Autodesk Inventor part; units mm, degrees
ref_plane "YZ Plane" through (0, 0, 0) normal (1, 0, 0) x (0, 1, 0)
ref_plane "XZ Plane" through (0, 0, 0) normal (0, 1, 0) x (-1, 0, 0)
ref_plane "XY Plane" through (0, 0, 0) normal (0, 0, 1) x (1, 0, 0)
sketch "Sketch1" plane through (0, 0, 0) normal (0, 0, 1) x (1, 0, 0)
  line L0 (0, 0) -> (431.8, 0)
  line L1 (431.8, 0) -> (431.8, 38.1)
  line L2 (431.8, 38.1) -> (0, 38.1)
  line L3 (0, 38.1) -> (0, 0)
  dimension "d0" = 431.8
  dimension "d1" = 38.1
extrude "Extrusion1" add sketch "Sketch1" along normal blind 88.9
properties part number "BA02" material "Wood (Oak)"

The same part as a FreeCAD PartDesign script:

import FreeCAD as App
import Part
import Sketcher
from FreeCAD import Vector
Q = App.Units.Quantity


def add_polygon(sketch, points):
    """Adds a closed chain of lines whose ends are joined by coincident constraints."""
    first, n = sketch.GeometryCount, len(points)
    for a, b in zip(points, points[1:] + points[:1]):
        sketch.addGeometry(Part.LineSegment(App.Vector(*a, 0), App.Vector(*b, 0)), False)
    for i in range(n):
        sketch.addConstraint(Sketcher.Constraint("Coincident", first + i, 2, first + (i + 1) % n, 1))

doc = App.newDocument("Part")
body = doc.addObject("PartDesign::Body", "Body")

# Sketch on XY plane
sketch1 = doc.addObject("Sketcher::SketchObject", "Sketch")
body.addObject(sketch1)
sketch1.AttachmentSupport = (doc.XY_Plane, [""])
sketch1.MapMode = "FlatFace"
add_polygon(sketch1, [(0, 38), (0, 0), (432, 0), (432, 38)])  # lines 0-3
sketch1.addConstraint([
    Sketcher.Constraint("Vertical", 0),
    Sketcher.Constraint("Horizontal", 1),
    Sketcher.Constraint("Vertical", 2),
    Sketcher.Constraint("Horizontal", 3),
    Sketcher.Constraint("Coincident", 0, 2, -1, 1),
    Sketcher.Constraint("DistanceX", 1, 1, 1, 2, Q("17 in")),
    Sketcher.Constraint("DistanceY", 0, 2, 0, 1, Q("1.5 in")),
])
pad1 = doc.addObject("PartDesign::Pad", "Pad")
body.addObject(pad1)
pad1.Profile = sketch1
pad1.Length = Q("3.5 in")

doc.recompute()
